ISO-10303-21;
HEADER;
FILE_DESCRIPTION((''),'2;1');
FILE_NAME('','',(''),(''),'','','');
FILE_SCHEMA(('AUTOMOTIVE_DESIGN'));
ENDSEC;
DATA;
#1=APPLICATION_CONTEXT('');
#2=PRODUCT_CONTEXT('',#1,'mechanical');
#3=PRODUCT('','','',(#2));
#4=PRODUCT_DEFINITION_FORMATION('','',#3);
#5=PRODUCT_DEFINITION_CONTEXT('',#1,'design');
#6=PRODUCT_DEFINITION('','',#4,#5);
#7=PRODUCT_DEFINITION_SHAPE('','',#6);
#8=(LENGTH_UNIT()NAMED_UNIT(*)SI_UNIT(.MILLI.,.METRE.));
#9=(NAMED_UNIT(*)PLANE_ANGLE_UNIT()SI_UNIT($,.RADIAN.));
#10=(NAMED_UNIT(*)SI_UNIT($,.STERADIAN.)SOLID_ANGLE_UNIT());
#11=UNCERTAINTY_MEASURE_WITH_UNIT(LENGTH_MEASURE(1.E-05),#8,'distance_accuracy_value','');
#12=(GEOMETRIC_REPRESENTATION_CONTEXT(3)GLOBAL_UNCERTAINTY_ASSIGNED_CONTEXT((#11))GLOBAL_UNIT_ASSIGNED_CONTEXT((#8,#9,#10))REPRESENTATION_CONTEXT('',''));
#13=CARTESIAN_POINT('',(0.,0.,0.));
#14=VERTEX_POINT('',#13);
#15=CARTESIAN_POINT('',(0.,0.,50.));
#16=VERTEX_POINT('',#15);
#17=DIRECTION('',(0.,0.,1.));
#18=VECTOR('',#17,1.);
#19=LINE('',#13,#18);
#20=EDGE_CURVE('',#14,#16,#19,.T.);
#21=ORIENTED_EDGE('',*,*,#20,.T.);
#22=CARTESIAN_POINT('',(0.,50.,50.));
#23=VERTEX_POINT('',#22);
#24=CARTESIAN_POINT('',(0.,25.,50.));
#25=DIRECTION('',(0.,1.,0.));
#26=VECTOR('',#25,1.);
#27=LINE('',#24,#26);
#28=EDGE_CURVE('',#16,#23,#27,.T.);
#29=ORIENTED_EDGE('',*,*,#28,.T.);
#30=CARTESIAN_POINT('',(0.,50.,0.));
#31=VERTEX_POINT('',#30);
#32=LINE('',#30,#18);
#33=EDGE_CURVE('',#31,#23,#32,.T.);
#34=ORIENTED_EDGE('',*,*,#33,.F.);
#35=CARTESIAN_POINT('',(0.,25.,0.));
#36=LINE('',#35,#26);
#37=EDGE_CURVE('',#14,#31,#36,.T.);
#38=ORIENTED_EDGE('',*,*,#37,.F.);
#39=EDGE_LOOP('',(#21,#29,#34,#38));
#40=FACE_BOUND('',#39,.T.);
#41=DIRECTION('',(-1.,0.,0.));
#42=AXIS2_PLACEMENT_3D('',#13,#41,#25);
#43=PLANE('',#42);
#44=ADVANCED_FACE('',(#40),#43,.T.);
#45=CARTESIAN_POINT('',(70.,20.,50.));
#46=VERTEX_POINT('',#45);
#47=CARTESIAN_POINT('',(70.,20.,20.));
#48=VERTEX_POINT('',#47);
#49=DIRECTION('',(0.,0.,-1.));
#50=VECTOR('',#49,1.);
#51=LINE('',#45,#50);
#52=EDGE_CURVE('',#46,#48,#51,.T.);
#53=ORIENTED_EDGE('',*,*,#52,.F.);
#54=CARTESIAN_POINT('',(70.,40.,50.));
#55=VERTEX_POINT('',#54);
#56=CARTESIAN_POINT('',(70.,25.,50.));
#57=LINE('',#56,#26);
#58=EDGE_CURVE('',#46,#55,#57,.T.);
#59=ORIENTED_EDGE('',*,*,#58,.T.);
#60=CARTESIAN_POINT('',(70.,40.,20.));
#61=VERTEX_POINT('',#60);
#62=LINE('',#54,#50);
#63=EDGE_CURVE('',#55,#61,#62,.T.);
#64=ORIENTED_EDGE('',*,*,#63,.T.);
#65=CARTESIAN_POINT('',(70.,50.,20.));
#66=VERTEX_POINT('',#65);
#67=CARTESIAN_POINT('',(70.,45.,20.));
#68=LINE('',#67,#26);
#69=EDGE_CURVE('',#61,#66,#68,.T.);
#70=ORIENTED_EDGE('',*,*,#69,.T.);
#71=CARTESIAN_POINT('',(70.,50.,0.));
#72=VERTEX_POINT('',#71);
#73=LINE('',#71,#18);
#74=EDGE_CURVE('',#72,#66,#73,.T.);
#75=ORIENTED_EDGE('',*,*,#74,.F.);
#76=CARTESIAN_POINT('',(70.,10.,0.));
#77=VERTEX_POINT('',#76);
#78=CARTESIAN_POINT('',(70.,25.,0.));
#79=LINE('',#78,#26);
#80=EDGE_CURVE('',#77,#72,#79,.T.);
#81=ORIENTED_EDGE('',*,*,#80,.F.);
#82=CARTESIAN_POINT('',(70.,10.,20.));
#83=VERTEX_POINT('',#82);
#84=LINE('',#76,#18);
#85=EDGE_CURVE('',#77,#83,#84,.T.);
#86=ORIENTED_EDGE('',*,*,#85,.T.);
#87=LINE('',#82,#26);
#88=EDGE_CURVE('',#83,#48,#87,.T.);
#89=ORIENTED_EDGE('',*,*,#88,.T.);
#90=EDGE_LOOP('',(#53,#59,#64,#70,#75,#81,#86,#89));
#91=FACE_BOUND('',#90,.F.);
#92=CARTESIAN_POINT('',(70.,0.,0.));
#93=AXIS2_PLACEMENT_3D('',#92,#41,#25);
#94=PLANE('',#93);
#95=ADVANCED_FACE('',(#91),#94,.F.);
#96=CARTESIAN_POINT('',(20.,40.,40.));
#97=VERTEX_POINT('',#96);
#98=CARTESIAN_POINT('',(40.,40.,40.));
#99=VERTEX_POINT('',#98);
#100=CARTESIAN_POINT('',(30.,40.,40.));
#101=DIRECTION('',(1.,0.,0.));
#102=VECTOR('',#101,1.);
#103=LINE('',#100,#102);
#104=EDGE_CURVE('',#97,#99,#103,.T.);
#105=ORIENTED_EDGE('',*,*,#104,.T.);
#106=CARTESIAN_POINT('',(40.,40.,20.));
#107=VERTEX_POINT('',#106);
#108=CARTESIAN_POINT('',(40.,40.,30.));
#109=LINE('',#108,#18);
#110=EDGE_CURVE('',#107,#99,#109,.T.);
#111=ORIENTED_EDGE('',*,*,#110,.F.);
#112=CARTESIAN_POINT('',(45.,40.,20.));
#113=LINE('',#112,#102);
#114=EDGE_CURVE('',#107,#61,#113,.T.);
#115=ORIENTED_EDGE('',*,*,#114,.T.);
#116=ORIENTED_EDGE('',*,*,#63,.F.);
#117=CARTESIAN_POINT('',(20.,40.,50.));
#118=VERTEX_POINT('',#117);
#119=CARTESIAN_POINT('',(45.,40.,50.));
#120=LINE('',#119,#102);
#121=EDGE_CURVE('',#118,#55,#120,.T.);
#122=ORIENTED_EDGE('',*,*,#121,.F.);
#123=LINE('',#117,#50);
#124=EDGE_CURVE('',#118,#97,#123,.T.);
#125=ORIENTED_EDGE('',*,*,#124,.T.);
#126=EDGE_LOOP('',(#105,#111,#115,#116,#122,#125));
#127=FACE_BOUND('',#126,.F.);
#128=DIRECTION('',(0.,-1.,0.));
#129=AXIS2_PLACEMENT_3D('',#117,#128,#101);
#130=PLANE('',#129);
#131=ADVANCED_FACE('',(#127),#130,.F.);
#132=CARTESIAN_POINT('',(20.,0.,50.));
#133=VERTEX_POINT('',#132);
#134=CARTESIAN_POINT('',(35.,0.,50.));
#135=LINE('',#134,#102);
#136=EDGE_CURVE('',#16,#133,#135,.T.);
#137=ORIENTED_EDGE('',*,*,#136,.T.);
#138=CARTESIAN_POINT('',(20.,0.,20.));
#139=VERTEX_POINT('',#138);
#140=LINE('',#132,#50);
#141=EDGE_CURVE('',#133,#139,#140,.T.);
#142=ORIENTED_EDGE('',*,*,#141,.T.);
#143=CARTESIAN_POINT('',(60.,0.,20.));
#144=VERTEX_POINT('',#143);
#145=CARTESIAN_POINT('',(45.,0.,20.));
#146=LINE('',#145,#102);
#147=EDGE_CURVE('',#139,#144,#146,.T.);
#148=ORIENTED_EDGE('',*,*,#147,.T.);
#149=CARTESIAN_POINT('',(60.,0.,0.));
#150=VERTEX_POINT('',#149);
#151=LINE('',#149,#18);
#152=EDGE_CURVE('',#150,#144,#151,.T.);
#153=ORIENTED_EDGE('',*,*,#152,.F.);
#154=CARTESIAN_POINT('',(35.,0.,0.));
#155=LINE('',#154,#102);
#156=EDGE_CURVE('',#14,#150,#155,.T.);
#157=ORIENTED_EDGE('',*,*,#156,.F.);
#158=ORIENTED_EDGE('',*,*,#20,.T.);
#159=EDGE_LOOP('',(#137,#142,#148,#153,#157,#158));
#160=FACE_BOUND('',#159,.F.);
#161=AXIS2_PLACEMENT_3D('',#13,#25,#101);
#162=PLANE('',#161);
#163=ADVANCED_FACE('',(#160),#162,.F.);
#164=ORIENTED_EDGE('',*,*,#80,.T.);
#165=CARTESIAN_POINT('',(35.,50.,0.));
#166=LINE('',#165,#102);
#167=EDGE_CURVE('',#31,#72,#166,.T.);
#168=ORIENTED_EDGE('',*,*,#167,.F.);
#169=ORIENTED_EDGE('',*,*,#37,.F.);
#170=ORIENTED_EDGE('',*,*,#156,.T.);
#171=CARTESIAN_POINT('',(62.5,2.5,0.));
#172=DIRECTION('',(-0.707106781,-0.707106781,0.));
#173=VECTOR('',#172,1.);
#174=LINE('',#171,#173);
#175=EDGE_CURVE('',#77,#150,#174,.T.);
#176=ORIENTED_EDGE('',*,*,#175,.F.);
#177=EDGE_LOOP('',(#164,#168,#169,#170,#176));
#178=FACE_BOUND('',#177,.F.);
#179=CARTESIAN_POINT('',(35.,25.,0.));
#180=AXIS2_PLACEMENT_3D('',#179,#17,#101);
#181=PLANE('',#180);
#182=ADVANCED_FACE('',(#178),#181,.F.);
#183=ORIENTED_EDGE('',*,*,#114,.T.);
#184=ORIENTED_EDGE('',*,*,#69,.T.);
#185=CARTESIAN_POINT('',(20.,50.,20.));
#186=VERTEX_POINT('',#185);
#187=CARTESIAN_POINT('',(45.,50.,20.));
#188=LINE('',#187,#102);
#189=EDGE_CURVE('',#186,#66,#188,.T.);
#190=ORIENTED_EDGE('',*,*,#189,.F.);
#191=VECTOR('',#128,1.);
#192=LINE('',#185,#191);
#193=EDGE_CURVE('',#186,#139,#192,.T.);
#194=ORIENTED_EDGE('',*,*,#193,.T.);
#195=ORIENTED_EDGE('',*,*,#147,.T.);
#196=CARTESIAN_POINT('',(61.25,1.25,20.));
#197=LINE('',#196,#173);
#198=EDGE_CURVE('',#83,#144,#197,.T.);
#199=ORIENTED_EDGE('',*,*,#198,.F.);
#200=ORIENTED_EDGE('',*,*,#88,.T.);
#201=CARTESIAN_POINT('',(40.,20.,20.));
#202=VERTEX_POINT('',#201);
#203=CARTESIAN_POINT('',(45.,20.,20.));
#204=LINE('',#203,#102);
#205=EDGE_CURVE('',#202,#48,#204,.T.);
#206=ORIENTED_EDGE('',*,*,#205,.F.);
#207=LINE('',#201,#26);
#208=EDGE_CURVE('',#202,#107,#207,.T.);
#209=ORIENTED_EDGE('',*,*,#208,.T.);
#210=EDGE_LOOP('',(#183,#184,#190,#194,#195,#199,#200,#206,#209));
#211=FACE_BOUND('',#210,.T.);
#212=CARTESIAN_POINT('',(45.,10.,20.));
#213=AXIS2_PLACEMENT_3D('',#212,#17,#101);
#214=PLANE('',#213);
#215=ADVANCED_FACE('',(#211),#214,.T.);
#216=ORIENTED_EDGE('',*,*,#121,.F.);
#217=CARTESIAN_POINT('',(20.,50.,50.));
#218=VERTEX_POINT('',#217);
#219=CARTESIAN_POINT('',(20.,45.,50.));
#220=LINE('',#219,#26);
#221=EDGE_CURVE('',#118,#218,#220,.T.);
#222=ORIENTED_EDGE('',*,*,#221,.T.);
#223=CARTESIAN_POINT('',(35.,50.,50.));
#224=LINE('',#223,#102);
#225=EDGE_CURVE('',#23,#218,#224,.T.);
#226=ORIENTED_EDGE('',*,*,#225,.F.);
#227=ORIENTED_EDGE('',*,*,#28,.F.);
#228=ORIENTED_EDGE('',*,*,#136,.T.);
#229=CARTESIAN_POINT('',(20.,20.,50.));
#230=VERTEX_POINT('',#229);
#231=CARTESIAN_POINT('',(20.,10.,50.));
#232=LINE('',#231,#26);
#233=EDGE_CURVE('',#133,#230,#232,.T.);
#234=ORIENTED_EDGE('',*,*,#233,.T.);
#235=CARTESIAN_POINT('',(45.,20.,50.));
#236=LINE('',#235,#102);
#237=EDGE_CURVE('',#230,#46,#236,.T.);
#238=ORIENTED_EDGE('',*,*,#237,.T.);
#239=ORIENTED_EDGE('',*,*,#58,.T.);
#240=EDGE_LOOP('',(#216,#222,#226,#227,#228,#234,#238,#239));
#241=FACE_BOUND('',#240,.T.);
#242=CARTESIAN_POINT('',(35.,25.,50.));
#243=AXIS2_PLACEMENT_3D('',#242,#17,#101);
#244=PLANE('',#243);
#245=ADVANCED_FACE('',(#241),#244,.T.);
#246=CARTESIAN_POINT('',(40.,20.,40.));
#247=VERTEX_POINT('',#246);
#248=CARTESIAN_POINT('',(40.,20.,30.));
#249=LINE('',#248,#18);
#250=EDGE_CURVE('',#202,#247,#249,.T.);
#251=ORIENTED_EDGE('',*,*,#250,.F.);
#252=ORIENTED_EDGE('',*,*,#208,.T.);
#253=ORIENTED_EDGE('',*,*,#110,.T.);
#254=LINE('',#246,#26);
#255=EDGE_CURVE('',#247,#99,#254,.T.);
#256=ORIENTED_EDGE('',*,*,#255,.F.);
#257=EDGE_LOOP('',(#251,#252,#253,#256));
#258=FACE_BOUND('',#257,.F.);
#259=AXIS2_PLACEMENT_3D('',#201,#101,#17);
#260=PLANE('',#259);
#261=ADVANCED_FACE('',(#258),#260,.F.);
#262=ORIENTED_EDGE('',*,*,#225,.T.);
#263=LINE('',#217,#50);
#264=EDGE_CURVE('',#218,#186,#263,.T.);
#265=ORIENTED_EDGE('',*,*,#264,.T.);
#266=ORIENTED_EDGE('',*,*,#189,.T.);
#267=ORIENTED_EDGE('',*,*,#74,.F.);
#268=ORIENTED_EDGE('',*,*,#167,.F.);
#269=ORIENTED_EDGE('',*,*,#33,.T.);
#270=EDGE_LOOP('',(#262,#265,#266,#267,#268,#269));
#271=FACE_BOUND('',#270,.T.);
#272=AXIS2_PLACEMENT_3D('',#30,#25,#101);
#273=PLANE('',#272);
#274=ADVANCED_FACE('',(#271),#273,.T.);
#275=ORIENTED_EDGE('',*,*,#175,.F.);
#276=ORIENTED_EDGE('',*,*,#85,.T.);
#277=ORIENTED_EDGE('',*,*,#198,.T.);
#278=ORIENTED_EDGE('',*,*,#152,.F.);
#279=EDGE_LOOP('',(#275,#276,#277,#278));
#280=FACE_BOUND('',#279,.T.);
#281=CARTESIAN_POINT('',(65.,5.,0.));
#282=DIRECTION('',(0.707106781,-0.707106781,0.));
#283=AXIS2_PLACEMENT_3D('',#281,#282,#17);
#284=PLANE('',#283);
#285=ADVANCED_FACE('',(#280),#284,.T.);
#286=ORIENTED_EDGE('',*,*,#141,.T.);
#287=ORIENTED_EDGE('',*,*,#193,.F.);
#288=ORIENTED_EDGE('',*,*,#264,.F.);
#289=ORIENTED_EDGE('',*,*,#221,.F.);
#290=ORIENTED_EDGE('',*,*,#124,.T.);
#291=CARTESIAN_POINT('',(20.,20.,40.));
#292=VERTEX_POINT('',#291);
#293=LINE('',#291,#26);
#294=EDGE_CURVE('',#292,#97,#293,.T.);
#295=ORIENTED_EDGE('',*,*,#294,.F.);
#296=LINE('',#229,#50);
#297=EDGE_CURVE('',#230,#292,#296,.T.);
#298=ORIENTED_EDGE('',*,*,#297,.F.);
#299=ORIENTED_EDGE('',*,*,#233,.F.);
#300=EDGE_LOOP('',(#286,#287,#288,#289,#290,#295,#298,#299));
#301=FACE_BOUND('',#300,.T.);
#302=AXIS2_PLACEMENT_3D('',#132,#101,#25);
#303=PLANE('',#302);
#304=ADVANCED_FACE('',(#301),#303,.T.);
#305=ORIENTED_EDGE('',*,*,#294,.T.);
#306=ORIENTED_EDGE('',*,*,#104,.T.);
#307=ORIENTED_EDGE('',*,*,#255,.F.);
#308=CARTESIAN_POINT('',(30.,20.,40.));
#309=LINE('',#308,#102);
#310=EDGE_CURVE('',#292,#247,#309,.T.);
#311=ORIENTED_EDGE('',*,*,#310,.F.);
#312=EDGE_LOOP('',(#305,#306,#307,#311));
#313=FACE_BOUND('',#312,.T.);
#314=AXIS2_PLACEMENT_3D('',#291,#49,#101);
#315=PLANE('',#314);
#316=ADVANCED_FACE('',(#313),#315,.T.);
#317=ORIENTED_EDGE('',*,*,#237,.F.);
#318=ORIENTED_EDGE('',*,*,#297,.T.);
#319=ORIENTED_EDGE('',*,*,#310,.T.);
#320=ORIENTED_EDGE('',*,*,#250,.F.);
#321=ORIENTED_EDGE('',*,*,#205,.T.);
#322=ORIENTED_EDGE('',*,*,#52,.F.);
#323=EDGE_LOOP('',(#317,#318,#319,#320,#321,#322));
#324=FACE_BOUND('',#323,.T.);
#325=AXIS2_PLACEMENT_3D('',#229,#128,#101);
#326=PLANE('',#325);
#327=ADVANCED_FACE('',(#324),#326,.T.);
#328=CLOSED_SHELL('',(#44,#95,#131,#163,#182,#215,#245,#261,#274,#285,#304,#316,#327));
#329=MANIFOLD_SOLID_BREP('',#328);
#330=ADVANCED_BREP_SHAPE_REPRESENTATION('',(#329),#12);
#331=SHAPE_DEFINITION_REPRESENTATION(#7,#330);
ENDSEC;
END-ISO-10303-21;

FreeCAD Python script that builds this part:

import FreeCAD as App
import Part
import Sketcher
from FreeCAD import Vector
Q = App.Units.Quantity


def edges_at(feature, points):
    """Names of the edges that pass closest to the given points."""
    edges = feature.Shape.Edges
    near = lambda p: min(range(len(edges)), key=lambda i: edges[i].distToShape(Part.Vertex(*p))[0])
    return sorted({f"Edge{near(p) + 1}" for p in points})

doc = App.newDocument("Part")
body = doc.addObject("PartDesign::Body", "Body")

# Sketch on XY plane
sketch1 = body.newObject("Sketcher::SketchObject", "Sketch")
sketch1.AttachmentSupport = (doc.getObject("XY_Plane"), [""])
sketch1.MapMode = "FlatFace"
sketch1.addGeometry([
    Part.LineSegment(Vector(0, 50, 0), Vector(0, 0, 0)),
    Part.LineSegment(Vector(0, 0, 0), Vector(70, 0, 0)),
    Part.LineSegment(Vector(70, 0, 0), Vector(70, 50, 0)),
    Part.LineSegment(Vector(70, 50, 0), Vector(0, 50, 0)),
], False)
sketch1.addConstraint([
    Sketcher.Constraint("Coincident", 0, 2, 1, 1),
    Sketcher.Constraint("Coincident", 1, 2, 2, 1),
    Sketcher.Constraint("Coincident", 2, 2, 3, 1),
    Sketcher.Constraint("Coincident", 3, 2, 0, 1),
    Sketcher.Constraint("Vertical", 0),
    Sketcher.Constraint("Horizontal", 1),
    Sketcher.Constraint("Vertical", 2),
    Sketcher.Constraint("Horizontal", 3),
    Sketcher.Constraint("Coincident", 0, 2, -1, 1),
    Sketcher.Constraint("DistanceX", 1, 1, 1, 2, Q("70 mm")),
    Sketcher.Constraint("DistanceY", 0, 2, 0, 1, Q("50 mm")),
])
pad1 = body.newObject("PartDesign::Pad", "Pad")
pad1.Profile = sketch1
pad1.Length = 50

# Sketch on XY plane
sketch2 = body.newObject("Sketcher::SketchObject", "Sketch001")
sketch2.AttachmentSupport = (doc.getObject("XY_Plane"), [""])
sketch2.MapMode = "FlatFace"
sketch2.AttachmentOffset = App.Placement(Vector(0, 0, 50), App.Rotation())
sketch2.addGeometry([
    Part.LineSegment(Vector(20, 20, 0), Vector(20, 0, 0)),
    Part.LineSegment(Vector(20, 0, 0), Vector(70, 0, 0)),
    Part.LineSegment(Vector(70, 0, 0), Vector(70, 20, 0)),
    Part.LineSegment(Vector(70, 20, 0), Vector(20, 20, 0)),
], False)
sketch2.addConstraint([
    Sketcher.Constraint("Coincident", 0, 2, 1, 1),
    Sketcher.Constraint("Coincident", 1, 2, 2, 1),
    Sketcher.Constraint("Coincident", 2, 2, 3, 1),
    Sketcher.Constraint("Coincident", 3, 2, 0, 1),
    Sketcher.Constraint("Vertical", 0),
    Sketcher.Constraint("Horizontal", 1),
    Sketcher.Constraint("Vertical", 2),
    Sketcher.Constraint("Horizontal", 3),
    Sketcher.Constraint("PointOnObject", 0, 2, -1),
    Sketcher.Constraint("DistanceX", 1, 1, 1, 2, Q("50 mm")),
    Sketcher.Constraint("DistanceY", 0, 2, 0, 1, Q("20 mm")),
    Sketcher.Constraint("DistanceX", -1, 1, 0, 2, Q("20 mm")),
])
pocket1 = body.newObject("PartDesign::Pocket", "Pocket")
pocket1.Profile = sketch2
pocket1.Length = 30

# Sketch on XY plane
sketch3 = body.newObject("Sketcher::SketchObject", "Sketch002")
sketch3.AttachmentSupport = (doc.getObject("XY_Plane"), [""])
sketch3.MapMode = "FlatFace"
sketch3.AttachmentOffset = App.Placement(Vector(0, 0, 50), App.Rotation())
sketch3.addGeometry([
    Part.LineSegment(Vector(20, 50, 0), Vector(20, 40, 0)),
    Part.LineSegment(Vector(20, 40, 0), Vector(70, 40, 0)),
    Part.LineSegment(Vector(70, 40, 0), Vector(70, 50, 0)),
    Part.LineSegment(Vector(70, 50, 0), Vector(20, 50, 0)),
], False)
sketch3.addConstraint([
    Sketcher.Constraint("Coincident", 0, 2, 1, 1),
    Sketcher.Constraint("Coincident", 1, 2, 2, 1),
    Sketcher.Constraint("Coincident", 2, 2, 3, 1),
    Sketcher.Constraint("Coincident", 3, 2, 0, 1),
    Sketcher.Constraint("Vertical", 0),
    Sketcher.Constraint("Horizontal", 1),
    Sketcher.Constraint("Vertical", 2),
    Sketcher.Constraint("Horizontal", 3),
    Sketcher.Constraint("DistanceX", 1, 1, 1, 2, Q("50 mm")),
    Sketcher.Constraint("DistanceY", 0, 2, 0, 1, Q("10 mm")),
    Sketcher.Constraint("DistanceX", -1, 1, 0, 2, Q("20 mm")),
    Sketcher.Constraint("DistanceY", -1, 1, 0, 2, Q("40 mm")),
])
pocket2 = body.newObject("PartDesign::Pocket", "Pocket001")
pocket2.Profile = sketch3
pocket2.Length = 30

# Sketch on XZ plane
sketch4 = body.newObject("Sketcher::SketchObject", "Sketch003")
sketch4.AttachmentSupport = (doc.getObject("XZ_Plane"), [""])
sketch4.MapMode = "FlatFace"
sketch4.AttachmentOffset = App.Placement(Vector(0, 0, -20), App.Rotation())
sketch4.addGeometry([
    Part.LineSegment(Vector(20, 40, 0), Vector(20, 20, 0)),
    Part.LineSegment(Vector(20, 20, 0), Vector(40, 20, 0)),
    Part.LineSegment(Vector(40, 20, 0), Vector(40, 40, 0)),
    Part.LineSegment(Vector(40, 40, 0), Vector(20, 40, 0)),
], False)
sketch4.addConstraint([
    Sketcher.Constraint("Coincident", 0, 2, 1, 1),
    Sketcher.Constraint("Coincident", 1, 2, 2, 1),
    Sketcher.Constraint("Coincident", 2, 2, 3, 1),
    Sketcher.Constraint("Coincident", 3, 2, 0, 1),
    Sketcher.Constraint("Vertical", 0),
    Sketcher.Constraint("Horizontal", 1),
    Sketcher.Constraint("Vertical", 2),
    Sketcher.Constraint("Horizontal", 3),
    Sketcher.Constraint("Equal", 3, 0),
    Sketcher.Constraint("DistanceX", 1, 1, 1, 2, Q("20 mm")),
    Sketcher.Constraint("DistanceX", -1, 1, 0, 2, Q("20 mm")),
    Sketcher.Constraint("DistanceY", -1, 1, 0, 2, Q("20 mm")),
])
pocket3 = body.newObject("PartDesign::Pocket", "Pocket002")
pocket3.Profile = sketch4
pocket3.Type = "ThroughAll"
doc.recompute()

chamfer = body.newObject("PartDesign::Chamfer", "Chamfer")
chamfer.Base = (pocket3, edges_at(pocket3, [(70, 0, 10)]))
chamfer.Size = 10

doc.recompute()
